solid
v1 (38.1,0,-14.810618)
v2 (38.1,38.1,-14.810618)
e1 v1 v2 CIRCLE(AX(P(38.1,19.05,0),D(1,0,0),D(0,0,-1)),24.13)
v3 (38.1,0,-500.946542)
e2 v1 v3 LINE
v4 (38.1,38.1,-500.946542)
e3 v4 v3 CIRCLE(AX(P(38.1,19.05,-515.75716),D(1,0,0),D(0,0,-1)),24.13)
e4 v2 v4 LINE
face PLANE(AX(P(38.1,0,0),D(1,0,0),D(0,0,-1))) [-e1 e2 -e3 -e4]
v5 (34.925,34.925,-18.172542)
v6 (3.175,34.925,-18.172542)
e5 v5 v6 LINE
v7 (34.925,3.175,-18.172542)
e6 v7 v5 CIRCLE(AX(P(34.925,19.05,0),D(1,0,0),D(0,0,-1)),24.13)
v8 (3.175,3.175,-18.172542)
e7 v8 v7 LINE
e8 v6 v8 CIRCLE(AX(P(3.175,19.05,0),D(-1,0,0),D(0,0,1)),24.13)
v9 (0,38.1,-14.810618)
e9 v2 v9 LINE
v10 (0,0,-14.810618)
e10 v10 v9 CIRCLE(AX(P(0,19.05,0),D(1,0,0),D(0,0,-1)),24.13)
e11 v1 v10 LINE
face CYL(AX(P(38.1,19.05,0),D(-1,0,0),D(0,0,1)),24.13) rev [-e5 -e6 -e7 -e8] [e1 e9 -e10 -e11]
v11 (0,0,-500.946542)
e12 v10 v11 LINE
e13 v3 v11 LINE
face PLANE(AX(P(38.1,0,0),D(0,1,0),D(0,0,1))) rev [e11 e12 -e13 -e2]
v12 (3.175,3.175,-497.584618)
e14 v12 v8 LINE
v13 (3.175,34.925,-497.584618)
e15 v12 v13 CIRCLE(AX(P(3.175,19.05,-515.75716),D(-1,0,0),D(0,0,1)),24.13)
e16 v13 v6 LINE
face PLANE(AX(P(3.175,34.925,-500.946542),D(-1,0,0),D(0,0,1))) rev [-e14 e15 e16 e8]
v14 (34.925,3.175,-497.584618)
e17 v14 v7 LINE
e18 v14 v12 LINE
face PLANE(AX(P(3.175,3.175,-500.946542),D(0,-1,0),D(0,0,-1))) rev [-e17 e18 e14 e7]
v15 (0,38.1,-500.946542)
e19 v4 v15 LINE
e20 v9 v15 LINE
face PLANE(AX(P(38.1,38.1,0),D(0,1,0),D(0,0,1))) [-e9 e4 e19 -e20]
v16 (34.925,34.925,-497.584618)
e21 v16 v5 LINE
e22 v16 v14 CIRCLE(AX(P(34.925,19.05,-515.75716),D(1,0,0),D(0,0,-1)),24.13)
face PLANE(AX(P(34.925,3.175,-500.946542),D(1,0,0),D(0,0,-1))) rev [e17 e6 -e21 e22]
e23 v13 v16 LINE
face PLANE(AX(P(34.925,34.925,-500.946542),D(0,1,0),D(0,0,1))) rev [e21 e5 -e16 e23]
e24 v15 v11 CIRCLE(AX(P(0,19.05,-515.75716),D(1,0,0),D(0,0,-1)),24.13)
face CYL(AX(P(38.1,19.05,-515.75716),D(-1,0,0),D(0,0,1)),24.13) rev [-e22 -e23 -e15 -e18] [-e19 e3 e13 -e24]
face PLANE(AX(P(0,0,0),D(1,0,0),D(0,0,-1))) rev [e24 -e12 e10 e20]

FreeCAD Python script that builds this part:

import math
import FreeCAD as App
import Part
import Sketcher

V = App.Vector
Q = App.Units.Quantity


def add_polygon(sketch, points):
    """Adds a closed chain of lines whose ends are joined by coincident constraints."""
    first, n = sketch.GeometryCount, len(points)
    for a, b in zip(points, points[1:] + points[:1]):
        sketch.addGeometry(Part.LineSegment(App.Vector(*a, 0), App.Vector(*b, 0)), False)
    for i in range(n):
        sketch.addConstraint(Sketcher.Constraint("Coincident", first + i, 2, first + (i + 1) % n, 1))

doc = App.newDocument("Part")
body = doc.addObject("PartDesign::Body", "Body")

sketch1 = body.newObject("Sketcher::SketchObject", "Sketch")
sketch1.AttachmentSupport = (doc.getObject("YZ_Plane"), [""])
sketch1.MapMode = "FlatFace"
sketch1.addGeometry(Part.ArcOfCircle(Part.Circle(V(19.05, 0, 0), V(0, 0, 1), 24.13), math.radians(-142.136354), math.radians(-90)), False)
sketch1.addGeometry(Part.LineSegment(V(0, -14.810618, 0), V(0, -500.946542, 0)), False)
sketch1.addGeometry(Part.ArcOfCircle(Part.Circle(V(19.05, -515.75716, 0), V(0, 0, 1), 24.13), math.radians(37.863646), math.radians(142.136354)), False)
sketch1.addGeometry(Part.LineSegment(V(38.1, -500.946542, 0), V(38.1, -14.810618, 0)), False)
sketch1.addGeometry(Part.ArcOfCircle(Part.Circle(V(19.05, 0, 0), V(0, 0, 1), 24.13), math.radians(-90), math.radians(-37.863646)), False)
sketch1.addConstraint(Sketcher.Constraint("Coincident", 0, 1, 1, 1))
sketch1.addConstraint(Sketcher.Constraint("Coincident", 1, 2, 2, 2))
sketch1.addConstraint(Sketcher.Constraint("Coincident", 2, 1, 3, 1))
sketch1.addConstraint(Sketcher.Constraint("Coincident", 3, 2, 4, 2))
sketch1.addConstraint(Sketcher.Constraint("Tangent", 4, 1, 0, 2))
sketch1.addConstraint(Sketcher.Constraint("Vertical", 1))
sketch1.addConstraint(Sketcher.Constraint("Vertical", 3))
sketch1.addConstraint(Sketcher.Constraint("Equal", 0, 2))
sketch1.addConstraint(Sketcher.Constraint("Equal", 2, 4))
sketch1.addConstraint(Sketcher.Constraint("PointOnObject", 0, 3, -1))
sketch1.addConstraint(Sketcher.Constraint("PointOnObject", 0, 1, -2))
sketch1.addConstraint(Sketcher.Constraint("Horizontal", 1, 2, 2, 1))
sketch1.addConstraint(Sketcher.Constraint("Horizontal", 0, 1, 3, 2))
sketch1.addConstraint(Sketcher.Constraint("Vertical", 2, 3, 4, 1))
sketch1.addConstraint(Sketcher.Constraint("Radius", 0, Q("0.95 in")))
sketch1.addConstraint(Sketcher.Constraint("DistanceX", -1, 1, 2, 1, Q("1.5 in")))
sketch1.addConstraint(Sketcher.Constraint("DistanceY", 2, 3, -1, 1, Q("20.3054 in")))
pad1 = body.newObject("PartDesign::Pad", "Pad")
pad1.Profile = sketch1
pad1.Length = Q("1.5 in")

sketch2 = body.newObject("Sketcher::SketchObject", "Sketch001")
sketch2.AttachmentSupport = (doc.getObject("XY_Plane"), [""])
sketch2.MapMode = "FlatFace"
add_polygon(sketch2, [(3.175, 34.925), (3.175, 3.175), (34.925, 3.175), (34.925, 34.925)])
sketch2.addConstraint(Sketcher.Constraint("Vertical", 0))
sketch2.addConstraint(Sketcher.Constraint("Horizontal", 1))
sketch2.addConstraint(Sketcher.Constraint("Vertical", 2))
sketch2.addConstraint(Sketcher.Constraint("Horizontal", 3))
sketch2.addConstraint(Sketcher.Constraint("Equal", 3, 0))
sketch2.addConstraint(Sketcher.Constraint("DistanceX", 1, 1, 1, 2, Q("1.25 in")))
sketch2.addConstraint(Sketcher.Constraint("DistanceX", -1, 1, 0, 2, Q("0.125 in")))
sketch2.addConstraint(Sketcher.Constraint("DistanceY", -1, 1, 0, 2, Q("0.125 in")))
pocket1 = body.newObject("PartDesign::Pocket", "Pocket")
pocket1.Profile = sketch2
pocket1.Type = "ThroughAll"

doc.recompute()
